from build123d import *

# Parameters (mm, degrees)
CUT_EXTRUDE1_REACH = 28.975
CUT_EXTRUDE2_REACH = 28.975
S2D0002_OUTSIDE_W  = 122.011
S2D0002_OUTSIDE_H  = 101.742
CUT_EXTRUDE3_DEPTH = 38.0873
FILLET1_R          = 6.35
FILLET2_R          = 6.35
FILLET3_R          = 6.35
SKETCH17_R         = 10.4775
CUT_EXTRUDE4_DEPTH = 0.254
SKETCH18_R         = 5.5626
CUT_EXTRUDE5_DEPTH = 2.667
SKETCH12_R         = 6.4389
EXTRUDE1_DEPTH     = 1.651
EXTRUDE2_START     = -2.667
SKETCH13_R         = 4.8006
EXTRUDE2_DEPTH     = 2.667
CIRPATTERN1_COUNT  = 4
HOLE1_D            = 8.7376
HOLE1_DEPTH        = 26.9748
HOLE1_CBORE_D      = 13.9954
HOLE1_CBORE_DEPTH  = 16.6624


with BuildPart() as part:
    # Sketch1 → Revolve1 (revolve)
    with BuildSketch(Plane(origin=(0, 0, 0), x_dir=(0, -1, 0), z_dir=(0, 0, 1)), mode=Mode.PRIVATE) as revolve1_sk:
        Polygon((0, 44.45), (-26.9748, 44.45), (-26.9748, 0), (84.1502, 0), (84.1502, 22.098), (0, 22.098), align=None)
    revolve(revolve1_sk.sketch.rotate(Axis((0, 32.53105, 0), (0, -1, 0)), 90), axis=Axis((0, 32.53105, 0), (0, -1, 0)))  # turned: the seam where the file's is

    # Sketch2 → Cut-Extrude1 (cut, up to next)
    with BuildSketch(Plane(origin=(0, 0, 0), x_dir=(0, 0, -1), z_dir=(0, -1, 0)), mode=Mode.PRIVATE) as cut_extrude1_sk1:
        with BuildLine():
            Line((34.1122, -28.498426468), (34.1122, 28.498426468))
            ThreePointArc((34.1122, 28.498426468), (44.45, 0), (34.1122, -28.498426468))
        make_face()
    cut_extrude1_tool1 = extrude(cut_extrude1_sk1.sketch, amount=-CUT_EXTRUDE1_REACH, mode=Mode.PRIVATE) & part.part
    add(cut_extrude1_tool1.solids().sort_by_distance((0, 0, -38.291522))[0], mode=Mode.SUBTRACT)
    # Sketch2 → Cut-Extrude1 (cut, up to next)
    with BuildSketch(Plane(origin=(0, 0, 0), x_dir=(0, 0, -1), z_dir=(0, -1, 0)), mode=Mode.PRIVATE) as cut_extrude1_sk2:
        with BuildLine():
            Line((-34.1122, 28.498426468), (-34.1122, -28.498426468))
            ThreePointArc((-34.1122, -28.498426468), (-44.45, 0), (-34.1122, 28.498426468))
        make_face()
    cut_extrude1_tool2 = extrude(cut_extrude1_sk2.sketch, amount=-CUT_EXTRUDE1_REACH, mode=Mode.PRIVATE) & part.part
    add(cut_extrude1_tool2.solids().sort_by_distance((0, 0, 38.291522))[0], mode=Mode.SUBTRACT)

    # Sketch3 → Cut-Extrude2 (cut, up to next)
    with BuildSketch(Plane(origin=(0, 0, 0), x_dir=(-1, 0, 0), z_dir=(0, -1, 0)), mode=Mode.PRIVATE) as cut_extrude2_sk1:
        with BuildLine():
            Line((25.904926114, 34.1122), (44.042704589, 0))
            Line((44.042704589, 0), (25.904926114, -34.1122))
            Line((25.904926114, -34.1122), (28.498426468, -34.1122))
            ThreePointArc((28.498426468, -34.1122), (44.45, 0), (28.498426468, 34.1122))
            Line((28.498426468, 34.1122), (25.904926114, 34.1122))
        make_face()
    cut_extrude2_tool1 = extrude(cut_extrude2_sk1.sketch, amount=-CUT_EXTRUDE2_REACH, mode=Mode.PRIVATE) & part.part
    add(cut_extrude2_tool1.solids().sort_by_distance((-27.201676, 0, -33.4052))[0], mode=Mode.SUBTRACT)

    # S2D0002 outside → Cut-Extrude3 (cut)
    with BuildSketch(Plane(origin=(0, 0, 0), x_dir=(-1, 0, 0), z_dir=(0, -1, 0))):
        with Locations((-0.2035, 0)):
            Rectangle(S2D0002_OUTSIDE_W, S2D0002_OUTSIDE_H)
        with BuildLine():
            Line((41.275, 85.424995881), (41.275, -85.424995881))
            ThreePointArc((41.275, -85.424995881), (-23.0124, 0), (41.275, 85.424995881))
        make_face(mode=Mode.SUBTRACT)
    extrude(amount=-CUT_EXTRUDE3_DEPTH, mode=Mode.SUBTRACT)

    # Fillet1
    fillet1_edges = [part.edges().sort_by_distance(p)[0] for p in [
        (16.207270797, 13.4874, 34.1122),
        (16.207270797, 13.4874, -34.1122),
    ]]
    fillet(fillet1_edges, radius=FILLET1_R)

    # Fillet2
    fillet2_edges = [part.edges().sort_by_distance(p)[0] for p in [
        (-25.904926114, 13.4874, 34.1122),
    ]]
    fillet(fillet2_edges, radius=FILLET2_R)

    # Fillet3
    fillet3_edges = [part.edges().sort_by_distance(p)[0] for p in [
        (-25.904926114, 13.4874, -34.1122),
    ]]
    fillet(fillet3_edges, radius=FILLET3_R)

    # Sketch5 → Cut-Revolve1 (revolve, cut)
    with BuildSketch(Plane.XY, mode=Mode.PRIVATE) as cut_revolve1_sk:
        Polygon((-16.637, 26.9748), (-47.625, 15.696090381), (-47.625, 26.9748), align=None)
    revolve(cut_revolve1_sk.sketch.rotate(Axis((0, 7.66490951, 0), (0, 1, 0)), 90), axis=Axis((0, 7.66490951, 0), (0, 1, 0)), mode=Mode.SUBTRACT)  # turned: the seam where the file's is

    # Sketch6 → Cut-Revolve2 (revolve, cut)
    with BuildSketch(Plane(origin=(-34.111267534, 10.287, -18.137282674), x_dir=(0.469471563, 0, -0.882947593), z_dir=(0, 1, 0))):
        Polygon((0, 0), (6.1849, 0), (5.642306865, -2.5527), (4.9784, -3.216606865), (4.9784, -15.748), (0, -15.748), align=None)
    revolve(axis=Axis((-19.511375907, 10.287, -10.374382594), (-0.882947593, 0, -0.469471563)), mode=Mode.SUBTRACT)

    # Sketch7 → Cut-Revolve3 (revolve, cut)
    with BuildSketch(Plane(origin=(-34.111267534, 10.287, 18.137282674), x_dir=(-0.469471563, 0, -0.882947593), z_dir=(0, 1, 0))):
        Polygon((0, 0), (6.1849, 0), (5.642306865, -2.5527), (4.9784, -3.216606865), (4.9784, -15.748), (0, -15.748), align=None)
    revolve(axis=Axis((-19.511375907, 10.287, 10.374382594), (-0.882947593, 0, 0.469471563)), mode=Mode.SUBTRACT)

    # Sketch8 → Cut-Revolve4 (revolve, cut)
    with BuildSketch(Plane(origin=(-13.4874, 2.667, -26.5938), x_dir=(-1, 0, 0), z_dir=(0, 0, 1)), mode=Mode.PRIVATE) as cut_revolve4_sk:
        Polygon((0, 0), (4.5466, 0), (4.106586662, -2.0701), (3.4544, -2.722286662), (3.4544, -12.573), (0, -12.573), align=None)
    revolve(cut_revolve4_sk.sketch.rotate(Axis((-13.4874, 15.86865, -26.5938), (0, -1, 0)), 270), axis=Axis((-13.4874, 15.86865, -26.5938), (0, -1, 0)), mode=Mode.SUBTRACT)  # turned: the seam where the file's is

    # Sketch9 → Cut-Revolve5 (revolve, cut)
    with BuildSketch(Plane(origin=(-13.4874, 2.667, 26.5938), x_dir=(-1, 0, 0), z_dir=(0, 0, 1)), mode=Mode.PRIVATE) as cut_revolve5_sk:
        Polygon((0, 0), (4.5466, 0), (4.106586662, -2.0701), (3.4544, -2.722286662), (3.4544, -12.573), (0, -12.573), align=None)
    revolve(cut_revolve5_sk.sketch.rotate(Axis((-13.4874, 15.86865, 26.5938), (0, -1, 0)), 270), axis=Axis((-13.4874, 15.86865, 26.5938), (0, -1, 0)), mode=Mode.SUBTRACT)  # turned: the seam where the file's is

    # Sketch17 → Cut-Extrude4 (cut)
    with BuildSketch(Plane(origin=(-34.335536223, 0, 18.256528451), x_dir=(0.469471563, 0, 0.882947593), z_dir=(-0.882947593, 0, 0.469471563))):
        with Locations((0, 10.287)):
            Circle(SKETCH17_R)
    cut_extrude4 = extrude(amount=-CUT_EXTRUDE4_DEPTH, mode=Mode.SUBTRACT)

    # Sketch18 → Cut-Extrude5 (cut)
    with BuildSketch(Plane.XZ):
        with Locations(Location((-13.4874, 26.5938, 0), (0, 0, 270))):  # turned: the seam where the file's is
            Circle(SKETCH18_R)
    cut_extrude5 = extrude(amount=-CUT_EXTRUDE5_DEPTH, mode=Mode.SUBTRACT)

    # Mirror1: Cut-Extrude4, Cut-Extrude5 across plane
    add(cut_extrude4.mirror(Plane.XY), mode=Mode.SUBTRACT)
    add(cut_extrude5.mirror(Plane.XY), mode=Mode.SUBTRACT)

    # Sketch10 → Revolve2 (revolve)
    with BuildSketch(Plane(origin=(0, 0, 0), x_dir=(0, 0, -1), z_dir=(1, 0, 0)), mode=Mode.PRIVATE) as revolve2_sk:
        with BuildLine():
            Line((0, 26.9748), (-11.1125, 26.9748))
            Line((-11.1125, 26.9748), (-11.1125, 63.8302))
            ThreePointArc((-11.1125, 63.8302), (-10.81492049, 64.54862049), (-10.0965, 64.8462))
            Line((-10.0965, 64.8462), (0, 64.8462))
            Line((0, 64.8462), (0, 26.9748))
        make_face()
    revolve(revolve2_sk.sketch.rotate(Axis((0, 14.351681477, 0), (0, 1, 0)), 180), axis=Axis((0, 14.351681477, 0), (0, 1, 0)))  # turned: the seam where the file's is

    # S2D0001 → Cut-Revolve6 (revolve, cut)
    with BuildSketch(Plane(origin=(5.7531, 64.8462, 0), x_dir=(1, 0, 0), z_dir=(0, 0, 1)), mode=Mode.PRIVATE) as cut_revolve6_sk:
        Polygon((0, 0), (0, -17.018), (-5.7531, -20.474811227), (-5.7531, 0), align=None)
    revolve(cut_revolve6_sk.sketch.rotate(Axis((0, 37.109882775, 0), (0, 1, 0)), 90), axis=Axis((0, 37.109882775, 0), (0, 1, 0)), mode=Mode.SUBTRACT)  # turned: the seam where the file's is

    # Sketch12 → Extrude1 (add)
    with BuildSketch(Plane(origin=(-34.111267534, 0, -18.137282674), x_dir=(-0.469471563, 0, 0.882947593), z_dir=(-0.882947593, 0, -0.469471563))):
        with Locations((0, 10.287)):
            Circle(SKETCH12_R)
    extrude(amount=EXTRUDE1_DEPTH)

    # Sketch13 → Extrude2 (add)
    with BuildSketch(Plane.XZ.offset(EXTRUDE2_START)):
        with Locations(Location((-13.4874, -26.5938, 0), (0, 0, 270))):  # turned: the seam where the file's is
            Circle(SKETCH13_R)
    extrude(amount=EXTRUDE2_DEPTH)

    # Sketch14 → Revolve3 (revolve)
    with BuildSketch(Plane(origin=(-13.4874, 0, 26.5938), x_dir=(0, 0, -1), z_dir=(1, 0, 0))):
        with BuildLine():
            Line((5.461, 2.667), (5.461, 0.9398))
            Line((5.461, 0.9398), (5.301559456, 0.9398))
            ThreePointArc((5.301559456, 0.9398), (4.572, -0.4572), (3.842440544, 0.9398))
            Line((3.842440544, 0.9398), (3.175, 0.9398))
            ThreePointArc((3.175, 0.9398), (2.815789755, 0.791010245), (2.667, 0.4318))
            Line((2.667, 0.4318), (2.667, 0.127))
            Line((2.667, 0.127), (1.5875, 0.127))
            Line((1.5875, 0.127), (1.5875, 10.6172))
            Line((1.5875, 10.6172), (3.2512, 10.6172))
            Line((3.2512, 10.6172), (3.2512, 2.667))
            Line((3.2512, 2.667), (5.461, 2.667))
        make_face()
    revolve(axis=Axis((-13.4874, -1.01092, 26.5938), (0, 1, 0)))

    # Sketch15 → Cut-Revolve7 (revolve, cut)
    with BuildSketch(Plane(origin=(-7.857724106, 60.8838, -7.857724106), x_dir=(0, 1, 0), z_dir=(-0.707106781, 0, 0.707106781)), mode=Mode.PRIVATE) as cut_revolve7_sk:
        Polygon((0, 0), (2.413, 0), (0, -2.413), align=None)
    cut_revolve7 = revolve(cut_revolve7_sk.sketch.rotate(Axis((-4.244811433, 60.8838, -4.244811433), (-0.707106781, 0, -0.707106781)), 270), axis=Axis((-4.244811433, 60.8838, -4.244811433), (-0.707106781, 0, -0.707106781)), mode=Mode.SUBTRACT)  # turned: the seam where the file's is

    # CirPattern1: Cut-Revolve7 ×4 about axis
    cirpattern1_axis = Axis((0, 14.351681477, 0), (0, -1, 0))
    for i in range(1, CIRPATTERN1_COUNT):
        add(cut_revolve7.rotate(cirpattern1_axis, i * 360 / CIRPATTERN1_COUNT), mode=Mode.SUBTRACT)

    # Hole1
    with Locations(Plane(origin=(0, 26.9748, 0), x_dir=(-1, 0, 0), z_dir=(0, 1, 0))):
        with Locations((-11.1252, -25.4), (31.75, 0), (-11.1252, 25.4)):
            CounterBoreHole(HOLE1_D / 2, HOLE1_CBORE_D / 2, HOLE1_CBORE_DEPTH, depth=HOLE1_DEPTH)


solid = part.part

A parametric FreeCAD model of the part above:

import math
import FreeCAD as App
import Part
import Sketcher
Q = App.Units.Quantity


def edges_at(feature, points):
    """Names of the edges that pass closest to the given points."""
    edges = feature.Shape.Edges
    near = lambda p: min(range(len(edges)), key=lambda i: edges[i].distToShape(Part.Vertex(*p))[0])
    return sorted({f"Edge{near(p) + 1}" for p in points})

doc = App.newDocument("Part")
body = doc.addObject("PartDesign::Body", "Body")

# Sketch on XY plane
sketch1 = body.newObject("Sketcher::SketchObject", "Sketch")
sketch1.AttachmentSupport = (doc.getObject("XY_Plane"), [""])
sketch1.MapMode = "FlatFace"
sketch1.addGeometry([
    Part.LineSegment(App.Vector(44, 0, 0), App.Vector(44, 27, 0)),  # 0
    Part.LineSegment(App.Vector(44, 27, 0), App.Vector(0, 27, 0)),  # 1
    Part.LineSegment(App.Vector(0, 27, 0), App.Vector(0, -84, 0)),  # 2
    Part.LineSegment(App.Vector(0, -84, 0), App.Vector(22, -84, 0)),  # 3
    Part.LineSegment(App.Vector(22, -84, 0), App.Vector(22, 0, 0)),  # 4
    Part.LineSegment(App.Vector(22, 0, 0), App.Vector(44, 0, 0)),  # 5
], False)
sketch1.addConstraint([
    Sketcher.Constraint("Coincident", 0, 2, 1, 1),
    Sketcher.Constraint("Coincident", 1, 2, 2, 1),
    Sketcher.Constraint("Coincident", 2, 2, 3, 1),
    Sketcher.Constraint("Coincident", 3, 2, 4, 1),
    Sketcher.Constraint("Coincident", 4, 2, 5, 1),
    Sketcher.Constraint("Coincident", 5, 2, 0, 1),
    Sketcher.Constraint("Vertical", 0),
    Sketcher.Constraint("Horizontal", 1),
    Sketcher.Constraint("Vertical", 2),
    Sketcher.Constraint("Horizontal", 3),
    Sketcher.Constraint("Vertical", 4),
    Sketcher.Constraint("Horizontal", 5),
    Sketcher.Constraint("PointOnObject", 1, 2, -2),
    Sketcher.Constraint("PointOnObject", 4, 2, -1),
    Sketcher.Constraint("DistanceX", 1, 2, 1, 1, Q("1.75 in")),
    Sketcher.Constraint("DistanceX", 3, 1, 3, 2, Q("0.87 in")),
    Sketcher.Constraint("DistanceY", 0, 1, 0, 2, Q("1.062 in")),
    Sketcher.Constraint("DistanceY", 2, 2, 2, 1, Q("4.375 in")),
])
revolution = body.newObject("PartDesign::Revolution", "Revolution")
revolution.Profile = sketch1
revolution.ReferenceAxis = (sketch1, ["V_Axis"])
revolution.Angle = 360

# Sketch on XZ plane
sketch2 = body.newObject("Sketcher::SketchObject", "Sketch001")
sketch2.AttachmentSupport = (doc.getObject("XZ_Plane"), [""])
sketch2.MapMode = "FlatFace"
sketch2.addGeometry([
    Part.LineSegment(App.Vector(28, -34, 0), App.Vector(-28, -34, 0)),
    Part.ArcOfCircle(Part.Circle(App.Vector(0, 0, 0), App.Vector(0, 0, 1), 44), math.radians(-130), math.radians(-50)),
], False)
sketch2.addConstraint([
    Sketcher.Constraint("Coincident", 0, 1, 1, 2),
    Sketcher.Constraint("Coincident", 1, 1, 0, 2),
    Sketcher.Constraint("Horizontal", 0),
    Sketcher.Constraint("Coincident", 1, 3, -1, 1),
    Sketcher.Constraint("Radius", 1, Q("1.75 in")),
    Sketcher.Constraint("DistanceY", 0, 1, -1, 1, Q("1.343 in")),
])
pocket1 = body.newObject("PartDesign::Pocket", "Pocket")
pocket1.Profile = sketch2
pocket1.Type = "UpToFirst"

# Sketch on XZ plane
sketch3 = body.newObject("Sketcher::SketchObject", "Sketch002")
sketch3.AttachmentSupport = (doc.getObject("XZ_Plane"), [""])
sketch3.MapMode = "FlatFace"
sketch3.addGeometry([
    Part.LineSegment(App.Vector(-28, 34, 0), App.Vector(28, 34, 0)),
    Part.ArcOfCircle(Part.Circle(App.Vector(0, 0, 0), App.Vector(0, 0, 1), 44), math.radians(50), math.radians(130)),
], False)
sketch3.addConstraint([
    Sketcher.Constraint("Coincident", 0, 1, 1, 2),
    Sketcher.Constraint("Coincident", 1, 1, 0, 2),
    Sketcher.Constraint("Horizontal", 0),
    Sketcher.Constraint("Coincident", 1, 3, -1, 1),
    Sketcher.Constraint("Radius", 1, Q("1.75 in")),
    Sketcher.Constraint("DistanceY", -1, 1, 0, 1, Q("1.343 in")),
])
pocket2 = body.newObject("PartDesign::Pocket", "Pocket001")
pocket2.Profile = sketch3
pocket2.Type = "UpToFirst"

# Sketch on XZ plane
sketch4 = body.newObject("Sketcher::SketchObject", "Sketch003")
sketch4.AttachmentSupport = (doc.getObject("XZ_Plane"), [""])
sketch4.MapMode = "FlatFace"
sketch4.addGeometry([
    Part.LineSegment(App.Vector(-25.9, -34.1, 0), App.Vector(-44, 0, 0)),  # 0
    Part.LineSegment(App.Vector(-44, 0, 0), App.Vector(-25.9, 34.1, 0)),  # 1
    Part.LineSegment(App.Vector(-25.9, 34.1, 0), App.Vector(-28.5, 34.1, 0)),  # 2
    Part.ArcOfCircle(Part.Circle(App.Vector(0, 0, 0), App.Vector(0, 0, 1), 44.5), math.radians(130), math.radians(230)),  # 3
    Part.LineSegment(App.Vector(-28.5, -34.1, 0), App.Vector(-25.9, -34.1, 0)),  # 4
], False)
sketch4.addConstraint([
    Sketcher.Constraint("Coincident", 0, 2, 1, 1),
    Sketcher.Constraint("Coincident", 1, 2, 2, 1),
    Sketcher.Constraint("Coincident", 2, 2, 3, 1),
    Sketcher.Constraint("Coincident", 3, 2, 4, 1),
    Sketcher.Constraint("Coincident", 4, 2, 0, 1),
    Sketcher.Constraint("Horizontal", 2),
    Sketcher.Constraint("Horizontal", 4),
    Sketcher.Constraint("Coincident", 3, 3, -1, 1),
    Sketcher.Constraint("Symmetric", 1, 2, 4, 2, -1),
    Sketcher.Constraint("PointOnObject", 0, 2, -1),
    Sketcher.Constraint("Radius", 3, Q("1.75 in")),
    Sketcher.Constraint("Angle", 0, Q("118 deg")),
    Sketcher.Constraint("DistanceY", -1, 1, 1, 2, Q("1.343 in")),
    Sketcher.Constraint("DistanceX", 2, 2, 2, 1, Q("2.5935 mm")),
])
pocket3 = body.newObject("PartDesign::Pocket", "Pocket002")
pocket3.Profile = sketch4
pocket3.Type = "UpToFirst"

# Sketch on XZ plane
sketch5 = body.newObject("Sketcher::SketchObject", "Sketch004")
sketch5.AttachmentSupport = (doc.getObject("XZ_Plane"), [""])
sketch5.MapMode = "FlatFace"
sketch5.addGeometry([
    Part.LineSegment(App.Vector(61, -51, 0), App.Vector(61, 51, 0)),  # 0
    Part.LineSegment(App.Vector(61, 51, 0), App.Vector(7, 51, 0)),  # 1
    Part.ArcOfCircle(Part.Circle(App.Vector(-66, 0, 0), App.Vector(0, 0, 1), 89), math.radians(-35), math.radians(35)),  # 2
    Part.LineSegment(App.Vector(7, -51, 0), App.Vector(61, -51, 0)),  # 3
    Part.LineSegment(App.Vector(-41, -51, 0), App.Vector(-41, 51, 0)),  # 4
    Part.LineSegment(App.Vector(-41, 51, 0), App.Vector(-61, 51, 0)),  # 5
    Part.LineSegment(App.Vector(-61, 51, 0), App.Vector(-61, -51, 0)),  # 6
    Part.LineSegment(App.Vector(-61, -51, 0), App.Vector(-41, -51, 0)),  # 7
], False)
sketch5.addConstraint([
    Sketcher.Constraint("Coincident", 0, 2, 1, 1),
    Sketcher.Constraint("Coincident", 1, 2, 2, 2),
    Sketcher.Constraint("Coincident", 2, 1, 3, 1),
    Sketcher.Constraint("Coincident", 3, 2, 0, 1),
    Sketcher.Constraint("Coincident", 4, 2, 5, 1),
    Sketcher.Constraint("Coincident", 5, 2, 6, 1),
    Sketcher.Constraint("Coincident", 6, 2, 7, 1),
    Sketcher.Constraint("Coincident", 7, 2, 4, 1),
    Sketcher.Constraint("Vertical", 0),
    Sketcher.Constraint("Horizontal", 1),
    Sketcher.Constraint("Horizontal", 3),
    Sketcher.Constraint("Vertical", 4),
    Sketcher.Constraint("Horizontal", 5),
    Sketcher.Constraint("Vertical", 6),
    Sketcher.Constraint("Horizontal", 7),
    Sketcher.Constraint("Symmetric", 1, 2, 2, 1, -1),
    Sketcher.Constraint("Horizontal", 1, 2, 4, 2),
    Sketcher.Constraint("Horizontal", 3, 2, 6, 2),
    Sketcher.Constraint("Radius", 2, Q("3.5 in")),
    Sketcher.Constraint("DistanceX", 2, 3, -1, 1, Q("2.594 in")),
    Sketcher.Constraint("DistanceX", 4, 2, -1, 1, Q("1.625 in")),
    Sketcher.Constraint("DistanceX", 5, 2, 5, 1, Q("19.527 mm")),
    Sketcher.Constraint("DistanceY", 0, 1, 0, 2, Q("101.742 mm")),
    Sketcher.Constraint("DistanceX", -1, 1, 0, 2, Q("61.209 mm")),
])
pocket4 = body.newObject("PartDesign::Pocket", "Pocket003")
pocket4.Profile = sketch5
pocket4.Length = Q("1.4995 in")
doc.recompute()

fillet = body.newObject("PartDesign::Fillet", "Fillet")
fillet.Base = (pocket4, edges_at(pocket4, [(16.207, 13.487, 34.112), (16.207, 13.487, -34.112)]))
fillet.Radius = Q("0.25 in")
doc.recompute()

fillet2 = body.newObject("PartDesign::Fillet", "Fillet001")
fillet2.Base = (fillet, edges_at(fillet, [(-25.905, 13.487, 34.112)]))
fillet2.Radius = Q("0.25 in")
doc.recompute()

fillet3 = body.newObject("PartDesign::Fillet", "Fillet002")
fillet3.Base = (fillet2, edges_at(fillet2, [(-25.905, 13.487, -34.112)]))
fillet3.Radius = Q("0.25 in")

# Sketch on XY plane
sketch6 = body.newObject("Sketcher::SketchObject", "Sketch005")
sketch6.AttachmentSupport = (doc.getObject("XY_Plane"), [""])
sketch6.MapMode = "FlatFace"
sketch6.addGeometry([
    Part.LineSegment(App.Vector(-48, 16, 0), App.Vector(-17, 27, 0)),
    Part.LineSegment(App.Vector(-17, 27, 0), App.Vector(-48, 27, 0)),
    Part.LineSegment(App.Vector(-48, 27, 0), App.Vector(-48, 16, 0)),
], False)
sketch6.addConstraint([
    Sketcher.Constraint("Coincident", 0, 2, 1, 1),
    Sketcher.Constraint("Coincident", 1, 2, 2, 1),
    Sketcher.Constraint("Coincident", 2, 2, 0, 1),
    Sketcher.Constraint("Horizontal", 1),
    Sketcher.Constraint("Vertical", 2),
    Sketcher.Constraint("Angle", 0, Q("20 deg")),
    Sketcher.Constraint("DistanceX", 1, 2, 1, 1, Q("1.22 in")),
    Sketcher.Constraint("DistanceX", 0, 2, -1, 1, Q("0.655 in")),
    Sketcher.Constraint("DistanceY", -1, 1, 0, 2, Q("1.062 in")),
])
groove = body.newObject("PartDesign::Groove", "Groove")
groove.Profile = sketch6
groove.ReferenceAxis = (sketch6, ["V_Axis"])
groove.Angle = 360

# Sketch on XZ plane
sketch7 = body.newObject("Sketcher::SketchObject", "Sketch006")
sketch7.AttachmentSupport = (doc.getObject("XZ_Plane"), [""])
sketch7.MapMode = "FlatFace"
sketch7.AttachmentOffset = App.Placement(App.Vector(0, 0, -0.405 * 25.4), App.Rotation())
sketch7.addGeometry([
    Part.LineSegment(App.Vector(-31.2, -23.6, 0), App.Vector(-34.1, -18.1, 0)),  # 0
    Part.LineSegment(App.Vector(-34.1, -18.1, 0), App.Vector(-20.2, -10.7, 0)),  # 1
    Part.LineSegment(App.Vector(-20.2, -10.7, 0), App.Vector(-17.9, -15.1, 0)),  # 2
    Part.LineSegment(App.Vector(-17.9, -15.1, 0), App.Vector(-28.9, -21, 0)),  # 3
    Part.LineSegment(App.Vector(-28.9, -21, 0), App.Vector(-29.2, -21.9, 0)),  # 4
    Part.LineSegment(App.Vector(-29.2, -21.9, 0), App.Vector(-31.2, -23.6, 0)),  # 5
], False)
sketch7.addGeometry(Part.LineSegment(App.Vector(-20.2, -10.7, 0), App.Vector(-34.1, -18.1, 0)), True)  # axis
sketch7.addConstraint([
    Sketcher.Constraint("Coincident", 0, 2, 1, 1),
    Sketcher.Constraint("Coincident", 1, 2, 2, 1),
    Sketcher.Constraint("Coincident", 2, 2, 3, 1),
    Sketcher.Constraint("Coincident", 3, 2, 4, 1),
    Sketcher.Constraint("Coincident", 4, 2, 5, 1),
    Sketcher.Constraint("Coincident", 5, 2, 0, 1),
    Sketcher.Constraint("Coincident", 6, 1, 1, 2),
    Sketcher.Constraint("Coincident", 6, 2, 0, 2),
    Sketcher.Constraint("Perpendicular", 0, 1),
    Sketcher.Constraint("Perpendicular", 1, 2),
    Sketcher.Constraint("Perpendicular", 2, 3),
    Sketcher.Constraint("Angle", 0, Q("118 deg")),
    Sketcher.Constraint("Angle", 4, Q("-107 deg")),
    Sketcher.Constraint("Angle", 5, Q("-140 deg")),
    Sketcher.Constraint("Distance", 1, Q("0.62 in")),
    Sketcher.Constraint("Distance", 2, Q("0.196 in")),
    Sketcher.Constraint("Distance", 0, Q("0.2435 in")),
    Sketcher.Constraint("DistanceY", 3, 2, 1, 2, Q("10.278799 mm")),
    Sketcher.Constraint("DistanceX", 1, 2, -1, 1, Q("20.206609 mm")),
    Sketcher.Constraint("DistanceY", 2, 2, -1, 1, Q("15.139711 mm")),
])
groove2 = body.newObject("PartDesign::Groove", "Groove001")
groove2.Profile = sketch7
groove2.ReferenceAxis = (sketch7, ["Axis0"])
groove2.Angle = 360

# Sketch on XZ plane
sketch8 = body.newObject("Sketcher::SketchObject", "Sketch007")
sketch8.AttachmentSupport = (doc.getObject("XZ_Plane"), [""])
sketch8.MapMode = "FlatFace"
sketch8.AttachmentOffset = App.Placement(App.Vector(0, 0, -0.405 * 25.4), App.Rotation())
sketch8.addGeometry([
    Part.LineSegment(App.Vector(-37, 12.7, 0), App.Vector(-34.1, 18.1, 0)),  # 0
    Part.LineSegment(App.Vector(-34.1, 18.1, 0), App.Vector(-20.2, 10.7, 0)),  # 1
    Part.LineSegment(App.Vector(-20.2, 10.7, 0), App.Vector(-22.5, 6.3, 0)),  # 2
    Part.LineSegment(App.Vector(-22.5, 6.3, 0), App.Vector(-33.6, 12.2, 0)),  # 3
    Part.LineSegment(App.Vector(-33.6, 12.2, 0), App.Vector(-34.5, 12, 0)),  # 4
    Part.LineSegment(App.Vector(-34.5, 12, 0), App.Vector(-37, 12.7, 0)),  # 5
], False)
sketch8.addGeometry(Part.LineSegment(App.Vector(-20.2, 10.7, 0), App.Vector(-34.1, 18.1, 0)), True)  # axis
sketch8.addConstraint([
    Sketcher.Constraint("Coincident", 0, 2, 1, 1),
    Sketcher.Constraint("Coincident", 1, 2, 2, 1),
    Sketcher.Constraint("Coincident", 2, 2, 3, 1),
    Sketcher.Constraint("Coincident", 3, 2, 4, 1),
    Sketcher.Constraint("Coincident", 4, 2, 5, 1),
    Sketcher.Constraint("Coincident", 5, 2, 0, 1),
    Sketcher.Constraint("Coincident", 6, 1, 1, 2),
    Sketcher.Constraint("Coincident", 6, 2, 0, 2),
    Sketcher.Constraint("Perpendicular", 0, 1),
    Sketcher.Constraint("Perpendicular", 1, 2),
    Sketcher.Constraint("Perpendicular", 2, 3),
    Sketcher.Constraint("Angle", 0, Q("62 deg")),
    Sketcher.Constraint("Angle", 4, Q("-163 deg")),
    Sketcher.Constraint("Angle", 5, Q("164 deg")),
    Sketcher.Constraint("Distance", 1, Q("0.62 in")),
    Sketcher.Constraint("Distance", 2, Q("0.196 in")),
    Sketcher.Constraint("Distance", 0, Q("0.2435 in")),
    Sketcher.Constraint("DistanceY", -1, 1, 4, 2, Q("11.957001 mm")),
    Sketcher.Constraint("Distance", 5, Q("2.609729 mm")),
    Sketcher.Constraint("DistanceX", 1, 2, -1, 1, Q("20.206609 mm")),
])
groove3 = body.newObject("PartDesign::Groove", "Groove002")
groove3.Profile = sketch8
groove3.ReferenceAxis = (sketch8, ["Axis0"])
groove3.Angle = 360

# Sketch on XY plane
sketch9 = body.newObject("Sketcher::SketchObject", "Sketch008")
sketch9.AttachmentSupport = (doc.getObject("XY_Plane"), [""])
sketch9.MapMode = "FlatFace"
sketch9.AttachmentOffset = App.Placement(App.Vector(0, 0, -1.047 * 25.4), App.Rotation())
sketch9.addGeometry([
    Part.LineSegment(App.Vector(-18, 2.7, 0), App.Vector(-13.5, 2.7, 0)),  # 0
    Part.LineSegment(App.Vector(-13.5, 2.7, 0), App.Vector(-13.5, 15.2, 0)),  # 1
    Part.LineSegment(App.Vector(-13.5, 15.2, 0), App.Vector(-16.9, 15.2, 0)),  # 2
    Part.LineSegment(App.Vector(-16.9, 15.2, 0), App.Vector(-16.9, 5.4, 0)),  # 3
    Part.LineSegment(App.Vector(-16.9, 5.4, 0), App.Vector(-17.6, 4.7, 0)),  # 4
    Part.LineSegment(App.Vector(-17.6, 4.7, 0), App.Vector(-18, 2.7, 0)),  # 5
], False)
sketch9.addGeometry(Part.LineSegment(App.Vector(-13.5, 15.2, 0), App.Vector(-13.5, 2.7, 0)), True)  # axis
sketch9.addConstraint([
    Sketcher.Constraint("Coincident", 0, 2, 1, 1),
    Sketcher.Constraint("Coincident", 1, 2, 2, 1),
    Sketcher.Constraint("Coincident", 2, 2, 3, 1),
    Sketcher.Constraint("Coincident", 3, 2, 4, 1),
    Sketcher.Constraint("Coincident", 4, 2, 5, 1),
    Sketcher.Constraint("Coincident", 5, 2, 0, 1),
    Sketcher.Constraint("Horizontal", 0),
    Sketcher.Constraint("Vertical", 1),
    Sketcher.Constraint("Horizontal", 2),
    Sketcher.Constraint("Vertical", 3),
    Sketcher.Constraint("Vertical", 6),
    Sketcher.Constraint("Coincident", 6, 1, 1, 2),
    Sketcher.Constraint("Horizontal", 5, 2, 6, 2),
    Sketcher.Constraint("Angle", 4, Q("-135 deg")),
    Sketcher.Constraint("Angle", 5, Q("-102 deg")),
    Sketcher.Constraint("DistanceY", -1, 1, 1, 2, Q("0.6 in")),
    Sketcher.Constraint("DistanceX", 0, 1, 0, 2, Q("0.179 in")),
    Sketcher.Constraint("DistanceX", 2, 2, 2, 1, Q("0.136 in")),
    Sketcher.Constraint("DistanceY", 1, 1, 1, 2, Q("0.495 in")),
    Sketcher.Constraint("DistanceX", 5, 2, -1, 1, Q("0.71 in")),
    Sketcher.Constraint("DistanceY", -1, 1, 4, 2, Q("0.1865 in")),
])
groove4 = body.newObject("PartDesign::Groove", "Groove003")
groove4.Profile = sketch9
groove4.ReferenceAxis = (sketch9, ["Axis0"])
groove4.Angle = 360

# Sketch on XY plane
sketch10 = body.newObject("Sketcher::SketchObject", "Sketch009")
sketch10.AttachmentSupport = (doc.getObject("XY_Plane"), [""])
sketch10.MapMode = "FlatFace"
sketch10.AttachmentOffset = App.Placement(App.Vector(0, 0, 1.047 * 25.4), App.Rotation())
sketch10.addGeometry([
    Part.LineSegment(App.Vector(-18, 2.7, 0), App.Vector(-13.5, 2.7, 0)),  # 0
    Part.LineSegment(App.Vector(-13.5, 2.7, 0), App.Vector(-13.5, 15.2, 0)),  # 1
    Part.LineSegment(App.Vector(-13.5, 15.2, 0), App.Vector(-16.9, 15.2, 0)),  # 2
    Part.LineSegment(App.Vector(-16.9, 15.2, 0), App.Vector(-16.9, 5.4, 0)),  # 3
    Part.LineSegment(App.Vector(-16.9, 5.4, 0), App.Vector(-17.6, 4.7, 0)),  # 4
    Part.LineSegment(App.Vector(-17.6, 4.7, 0), App.Vector(-18, 2.7, 0)),  # 5
], False)
sketch10.addGeometry(Part.LineSegment(App.Vector(-13.5, 15.2, 0), App.Vector(-13.5, 2.7, 0)), True)  # axis
sketch10.addConstraint([
    Sketcher.Constraint("Coincident", 0, 2, 1, 1),
    Sketcher.Constraint("Coincident", 1, 2, 2, 1),
    Sketcher.Constraint("Coincident", 2, 2, 3, 1),
    Sketcher.Constraint("Coincident", 3, 2, 4, 1),
    Sketcher.Constraint("Coincident", 4, 2, 5, 1),
    Sketcher.Constraint("Coincident", 5, 2, 0, 1),
    Sketcher.Constraint("Horizontal", 0),
    Sketcher.Constraint("Vertical", 1),
    Sketcher.Constraint("Horizontal", 2),
    Sketcher.Constraint("Vertical", 3),
    Sketcher.Constraint("Vertical", 6),
    Sketcher.Constraint("Coincident", 6, 1, 1, 2),
    Sketcher.Constraint("Horizontal", 5, 2, 6, 2),
    Sketcher.Constraint("Angle", 4, Q("-135 deg")),
    Sketcher.Constraint("Angle", 5, Q("-102 deg")),
    Sketcher.Constraint("DistanceY", -1, 1, 1, 2, Q("0.6 in")),
    Sketcher.Constraint("DistanceX", 0, 1, 0, 2, Q("0.179 in")),
    Sketcher.Constraint("DistanceX", 2, 2, 2, 1, Q("0.136 in")),
    Sketcher.Constraint("DistanceY", 1, 1, 1, 2, Q("0.495 in")),
    Sketcher.Constraint("DistanceX", 5, 2, -1, 1, Q("0.71 in")),
    Sketcher.Constraint("DistanceY", -1, 1, 4, 2, Q("0.1865 in")),
])
groove5 = body.newObject("PartDesign::Groove", "Groove004")
groove5.Profile = sketch10
groove5.ReferenceAxis = (sketch10, ["Axis0"])
groove5.Angle = 360

# Sketch on an angled plane
sketch11 = body.newObject("Sketcher::SketchObject", "Sketch010")
sketch11.Placement = App.Placement(App.Vector(-34.335536, 0, 18.256528), App.Rotation(App.Vector(0.469471563, 0, 0.882947593), App.Vector(0, 1, 0), App.Vector(-0.882947593, 0, 0.469471563), "ZXY"))
sketch11.addGeometry(Part.Circle(App.Vector(0, 10, 0), App.Vector(0, 0, 1), 10), False)
sketch11.addConstraint([
    Sketcher.Constraint("PointOnObject", 0, 3, -2),
    Sketcher.Constraint("Diameter", 0, Q("0.825 in")),
    Sketcher.Constraint("DistanceY", -1, 1, 0, 3, Q("0.405 in")),
])
pocket5 = body.newObject("PartDesign::Pocket", "Pocket004")
pocket5.Profile = sketch11
pocket5.Length = Q("0.01 in")

# Sketch on XZ plane
sketch12 = body.newObject("Sketcher::SketchObject", "Sketch011")
sketch12.AttachmentSupport = (doc.getObject("XZ_Plane"), [""])
sketch12.MapMode = "FlatFace"
sketch12.addGeometry(Part.Circle(App.Vector(-13, 27, 0), App.Vector(0, 0, 1), 6), False)
sketch12.addConstraint([
    Sketcher.Constraint("Diameter", 0, Q("0.438 in")),
    Sketcher.Constraint("DistanceX", 0, 3, -1, 1, Q("0.531 in")),
    Sketcher.Constraint("DistanceY", -1, 1, 0, 3, Q("1.047 in")),
])
pocket6 = body.newObject("PartDesign::Pocket", "Pocket005")
pocket6.Profile = sketch12
pocket6.Length = Q("0.105 in")
doc.recompute()

mirrored = body.newObject("PartDesign::Mirrored", "Mirrored")
mirrored.Originals = [pocket5, pocket6]
mirrored.MirrorPlane = (doc.getObject("XY_Plane"), [""])
body.Tip = mirrored

# Sketch on YZ plane
sketch13 = body.newObject("Sketcher::SketchObject", "Sketch012")
sketch13.AttachmentSupport = (doc.getObject("YZ_Plane"), [""])
sketch13.MapMode = "FlatFace"
sketch13.addGeometry([
    Part.LineSegment(App.Vector(27, 11.1, 0), App.Vector(27, 0, 0)),  # 0
    Part.LineSegment(App.Vector(27, 0, 0), App.Vector(64.8, 0, 0)),  # 1
    Part.LineSegment(App.Vector(64.8, 0, 0), App.Vector(64.8, 10.1, 0)),  # 2
    Part.ArcOfCircle(Part.Circle(App.Vector(63.8, 10.1, 0), App.Vector(0, 0, 1), 1), math.radians(0), math.radians(90)),  # 3
    Part.LineSegment(App.Vector(63.8, 11.1, 0), App.Vector(27, 11.1, 0)),  # 4
], False)
sketch13.addConstraint([
    Sketcher.Constraint("Coincident", 0, 2, 1, 1),
    Sketcher.Constraint("Coincident", 1, 2, 2, 1),
    Sketcher.Constraint("Tangent", 2, 2, 3, 1),
    Sketcher.Constraint("Tangent", 3, 2, 4, 1),
    Sketcher.Constraint("Coincident", 4, 2, 0, 1),
    Sketcher.Constraint("Vertical", 0),
    Sketcher.Constraint("Horizontal", 1),
    Sketcher.Constraint("Vertical", 2),
    Sketcher.Constraint("Horizontal", 4),
    Sketcher.Constraint("PointOnObject", 0, 2, -1),
    Sketcher.Constraint("Radius", 3, Q("0.04 in")),
    Sketcher.Constraint("DistanceX", 1, 1, 1, 2, Q("1.491 in")),
    Sketcher.Constraint("DistanceY", 0, 2, 0, 1, Q("0.4375 in")),
    Sketcher.Constraint("DistanceX", -1, 1, 3, 3, Q("2.513 in")),
])
revolution2 = body.newObject("PartDesign::Revolution", "Revolution001")
revolution2.Profile = sketch13
revolution2.ReferenceAxis = (sketch13, ["H_Axis"])
revolution2.Angle = 360

# Sketch on XY plane
sketch14 = body.newObject("Sketcher::SketchObject", "Sketch013")
sketch14.AttachmentSupport = (doc.getObject("XY_Plane"), [""])
sketch14.MapMode = "FlatFace"
sketch14.addGeometry([
    Part.LineSegment(App.Vector(6, 48, 0), App.Vector(6, 65, 0)),
    Part.LineSegment(App.Vector(6, 65, 0), App.Vector(0, 65, 0)),
    Part.LineSegment(App.Vector(0, 65, 0), App.Vector(0, 44, 0)),
    Part.LineSegment(App.Vector(0, 44, 0), App.Vector(6, 48, 0)),
], False)
sketch14.addConstraint([
    Sketcher.Constraint("Coincident", 0, 2, 1, 1),
    Sketcher.Constraint("Coincident", 1, 2, 2, 1),
    Sketcher.Constraint("Coincident", 2, 2, 3, 1),
    Sketcher.Constraint("Coincident", 3, 2, 0, 1),
    Sketcher.Constraint("Vertical", 0),
    Sketcher.Constraint("Horizontal", 1),
    Sketcher.Constraint("Vertical", 2),
    Sketcher.Constraint("PointOnObject", 1, 2, -2),
    Sketcher.Constraint("Angle", 3, Q("31 deg")),
    Sketcher.Constraint("DistanceY", 0, 1, 0, 2, Q("0.67 in")),
    Sketcher.Constraint("DistanceX", 1, 2, 1, 1, Q("0.2265 in")),
    Sketcher.Constraint("DistanceY", -1, 1, 0, 2, Q("2.553 in")),
])
groove6 = body.newObject("PartDesign::Groove", "Groove005")
groove6.Profile = sketch14
groove6.ReferenceAxis = (sketch14, ["V_Axis"])
groove6.Angle = 360

# Sketch on an angled plane
sketch15 = body.newObject("Sketcher::SketchObject", "Sketch014")
sketch15.Placement = App.Placement(App.Vector(-34.111268, 0, -18.137283), App.Rotation(App.Vector(-0.469471563, 0, 0.882947593), App.Vector(0, 1, 0), App.Vector(-0.882947593, 0, -0.469471563), "ZXY"))
sketch15.addGeometry(Part.Circle(App.Vector(0, 10, 0), App.Vector(0, 0, 1), 6), False)
sketch15.addConstraint([
    Sketcher.Constraint("PointOnObject", 0, 3, -2),
    Sketcher.Constraint("Diameter", 0, Q("0.507 in")),
    Sketcher.Constraint("DistanceY", -1, 1, 0, 3, Q("0.405 in")),
])
pad1 = body.newObject("PartDesign::Pad", "Pad")
pad1.Profile = sketch15
pad1.Length = Q("0.065 in")

# Sketch on XZ plane
sketch16 = body.newObject("Sketcher::SketchObject", "Sketch015")
sketch16.AttachmentSupport = (doc.getObject("XZ_Plane"), [""])
sketch16.MapMode = "FlatFace"
sketch16.AttachmentOffset = App.Placement(App.Vector(0, 0, -0.105 * 25.4), App.Rotation())
sketch16.addGeometry(Part.Circle(App.Vector(-13.5, -26.6, 0), App.Vector(0, 0, 1), 4.8), False)
sketch16.addConstraint([
    Sketcher.Constraint("Diameter", 0, Q("0.378 in")),
    Sketcher.Constraint("DistanceX", 0, 3, -1, 1, Q("0.531 in")),
    Sketcher.Constraint("DistanceY", 0, 3, -1, 1, Q("1.047 in")),
])
pad2 = body.newObject("PartDesign::Pad", "Pad001")
pad2.Profile = sketch16
pad2.Length = Q("0.105 in")

# Sketch on YZ plane
sketch17 = body.newObject("Sketcher::SketchObject", "Sketch016")
sketch17.AttachmentSupport = (doc.getObject("YZ_Plane"), [""])
sketch17.MapMode = "FlatFace"
sketch17.AttachmentOffset = App.Placement(App.Vector(0, 0, -0.531 * 25.4), App.Rotation())
sketch17.addGeometry([
    Part.LineSegment(App.Vector(0.94, 21.13, 0), App.Vector(2.67, 21.13, 0)),  # 0
    Part.LineSegment(App.Vector(2.67, 21.13, 0), App.Vector(2.67, 23.34, 0)),  # 1
    Part.LineSegment(App.Vector(2.67, 23.34, 0), App.Vector(10.62, 23.34, 0)),  # 2
    Part.LineSegment(App.Vector(10.62, 23.34, 0), App.Vector(10.62, 25.01, 0)),  # 3
    Part.LineSegment(App.Vector(10.62, 25.01, 0), App.Vector(0.13, 25.01, 0)),  # 4
    Part.LineSegment(App.Vector(0.13, 25.01, 0), App.Vector(0.13, 23.93, 0)),  # 5
    Part.LineSegment(App.Vector(0.13, 23.93, 0), App.Vector(0.43, 23.93, 0)),  # 6
    Part.ArcOfCircle(Part.Circle(App.Vector(0.43, 23.42, 0), App.Vector(0, 0, 1), 0.51), math.radians(0), math.radians(90)),  # 7
    Part.LineSegment(App.Vector(0.94, 23.42, 0), App.Vector(0.94, 22.75, 0)),  # 8
    Part.ArcOfCircle(Part.Circle(App.Vector(0.43, 22.02, 0), App.Vector(0, 0, 1), 0.89), math.radians(55), math.radians(305)),  # 9
    Part.LineSegment(App.Vector(0.94, 21.29, 0), App.Vector(0.94, 21.13, 0)),  # 10
], False)
sketch17.addGeometry(Part.LineSegment(App.Vector(0.13, 26.59, 0), App.Vector(10.62, 26.59, 0)), True)  # axis
sketch17.addConstraint([
    Sketcher.Constraint("Coincident", 0, 2, 1, 1),
    Sketcher.Constraint("Coincident", 1, 2, 2, 1),
    Sketcher.Constraint("Coincident", 2, 2, 3, 1),
    Sketcher.Constraint("Coincident", 3, 2, 4, 1),
    Sketcher.Constraint("Coincident", 4, 2, 5, 1),
    Sketcher.Constraint("Coincident", 5, 2, 6, 1),
    Sketcher.Constraint("Tangent", 6, 2, 7, 2),
    Sketcher.Constraint("Tangent", 7, 1, 8, 1),
    Sketcher.Constraint("Coincident", 8, 2, 9, 1),
    Sketcher.Constraint("Coincident", 9, 2, 10, 1),
    Sketcher.Constraint("Coincident", 10, 2, 0, 1),
    Sketcher.Constraint("Horizontal", 0),
    Sketcher.Constraint("Vertical", 1),
    Sketcher.Constraint("Horizontal", 2),
    Sketcher.Constraint("Vertical", 3),
    Sketcher.Constraint("Horizontal", 4),
    Sketcher.Constraint("Vertical", 5),
    Sketcher.Constraint("Horizontal", 6),
    Sketcher.Constraint("Vertical", 8),
    Sketcher.Constraint("Vertical", 10),
    Sketcher.Constraint("Horizontal", 11),
    Sketcher.Constraint("Vertical", 7, 3, 9, 3),
    Sketcher.Constraint("Vertical", 8, 2, 9, 2),
    Sketcher.Constraint("Vertical", 5, 2, 11, 1),
    Sketcher.Constraint("Vertical", 3, 2, 11, 2),
    Sketcher.Constraint("Radius", 7, Q("0.02 in")),
    Sketcher.Constraint("Radius", 9, Q("0.035 in")),
    Sketcher.Constraint("DistanceX", 4, 2, 1, 2, Q("0.1 in")),
    Sketcher.Constraint("DistanceX", 0, 1, 0, 2, Q("0.068 in")),
    Sketcher.Constraint("DistanceX", 2, 1, 2, 2, Q("0.313 in")),
    Sketcher.Constraint("DistanceY", 1, 1, 1, 2, Q("0.087 in")),
    Sketcher.Constraint("DistanceY", 0, 2, 7, 3, Q("0.09 in")),
    Sketcher.Constraint("DistanceY", 3, 1, 3, 2, Q("0.0655 in")),
    Sketcher.Constraint("DistanceX", -1, 1, 7, 3, Q("0.017 in")),
    Sketcher.Constraint("DistanceY", -1, 1, 7, 3, Q("0.922 in")),
    Sketcher.Constraint("DistanceY", -1, 1, 9, 3, Q("0.867 in")),
    Sketcher.Constraint("DistanceY", -1, 1, 11, 1, Q("1.047 in")),
])
revolution3 = body.newObject("PartDesign::Revolution", "Revolution002")
revolution3.Profile = sketch17
revolution3.ReferenceAxis = (sketch17, ["Axis0"])
revolution3.Angle = 360

# Sketch on an angled plane
sketch18 = body.newObject("Sketcher::SketchObject", "Sketch017")
sketch18.Placement = App.Placement(App.Vector(-7.857724, 60.8838, -7.857724), App.Rotation(App.Vector(0, 1, 0), App.Vector(-0.707106781, 0, -0.707106781), App.Vector(-0.707106781, 0, 0.707106781), "ZXY"))
sketch18.addGeometry([
    Part.LineSegment(App.Vector(2.4, 0, 0), App.Vector(0, 0, 0)),
    Part.LineSegment(App.Vector(0, 0, 0), App.Vector(0, -2.4, 0)),
    Part.LineSegment(App.Vector(0, -2.4, 0), App.Vector(2.4, 0, 0)),
], False)
sketch18.addConstraint([
    Sketcher.Constraint("Coincident", 0, 2, 1, 1),
    Sketcher.Constraint("Coincident", 1, 2, 2, 1),
    Sketcher.Constraint("Coincident", 2, 2, 0, 1),
    Sketcher.Constraint("Horizontal", 0),
    Sketcher.Constraint("Vertical", 1),
    Sketcher.Constraint("Coincident", 0, 2, -1, 1),
    Sketcher.Constraint("Equal", 0, 1),
    Sketcher.Constraint("DistanceX", 0, 2, 0, 1, Q("0.095 in")),
])
groove7 = body.newObject("PartDesign::Groove", "Groove006")
groove7.Profile = sketch18
groove7.ReferenceAxis = (sketch18, ["V_Axis"])
groove7.Angle = 360
doc.recompute()

polarpattern = body.newObject("PartDesign::PolarPattern", "PolarPattern")
polarpattern.Originals = [groove7]
polarpattern.Axis = (doc.getObject("Y_Axis"), [""])
polarpattern.Angle = 360
polarpattern.Occurrences = 4
body.Tip = polarpattern

# Sketch on XZ plane
sketch19 = body.newObject("Sketcher::SketchObject", "Sketch018")
sketch19.AttachmentSupport = (doc.getObject("XZ_Plane"), [""])
sketch19.MapMode = "FlatFace"
sketch19.AttachmentOffset = App.Placement(App.Vector(0, 0, -1.062 * 25.4), App.Rotation())
sketch19.addGeometry([
    Part.Circle(App.Vector(11.1, -25.4, 0), App.Vector(0, 0, 1), 4.4),
    Part.Circle(App.Vector(-31.8, 0, 0), App.Vector(0, 0, 1), 4.4),
    Part.Circle(App.Vector(11.1, 25.4, 0), App.Vector(0, 0, 1), 4.4),
], False)
sketch19.addConstraint([
    Sketcher.Constraint("Equal", 0, 1),
    Sketcher.Constraint("Equal", 1, 2),
    Sketcher.Constraint("Symmetric", 0, 3, 2, 3, -1),
    Sketcher.Constraint("PointOnObject", 1, 3, -1),
    Sketcher.Constraint("Diameter", 0, Q("0.344 in")),
    Sketcher.Constraint("DistanceY", 0, 3, -1, 1, Q("1 in")),
    Sketcher.Constraint("DistanceX", 1, 3, -1, 1, Q("1.25 in")),
    Sketcher.Constraint("DistanceX", -1, 1, 0, 3, Q("0.438 in")),
])
doc.recompute()
hole = body.newObject("PartDesign::Hole", "Hole")
hole.Profile = sketch19
hole.ThreadType = "None"
hole.Diameter = Q("0.344 in")
hole.DepthType = "Dimension"
hole.Depth = Q("1.062 in")
hole.DrillPoint = "Flat"
hole.HoleCutType = "Counterbore"
hole.HoleCutDiameter = Q("0.551 in")
hole.HoleCutDepth = Q("0.656 in")
hole.Reversed = True

doc.recompute()
